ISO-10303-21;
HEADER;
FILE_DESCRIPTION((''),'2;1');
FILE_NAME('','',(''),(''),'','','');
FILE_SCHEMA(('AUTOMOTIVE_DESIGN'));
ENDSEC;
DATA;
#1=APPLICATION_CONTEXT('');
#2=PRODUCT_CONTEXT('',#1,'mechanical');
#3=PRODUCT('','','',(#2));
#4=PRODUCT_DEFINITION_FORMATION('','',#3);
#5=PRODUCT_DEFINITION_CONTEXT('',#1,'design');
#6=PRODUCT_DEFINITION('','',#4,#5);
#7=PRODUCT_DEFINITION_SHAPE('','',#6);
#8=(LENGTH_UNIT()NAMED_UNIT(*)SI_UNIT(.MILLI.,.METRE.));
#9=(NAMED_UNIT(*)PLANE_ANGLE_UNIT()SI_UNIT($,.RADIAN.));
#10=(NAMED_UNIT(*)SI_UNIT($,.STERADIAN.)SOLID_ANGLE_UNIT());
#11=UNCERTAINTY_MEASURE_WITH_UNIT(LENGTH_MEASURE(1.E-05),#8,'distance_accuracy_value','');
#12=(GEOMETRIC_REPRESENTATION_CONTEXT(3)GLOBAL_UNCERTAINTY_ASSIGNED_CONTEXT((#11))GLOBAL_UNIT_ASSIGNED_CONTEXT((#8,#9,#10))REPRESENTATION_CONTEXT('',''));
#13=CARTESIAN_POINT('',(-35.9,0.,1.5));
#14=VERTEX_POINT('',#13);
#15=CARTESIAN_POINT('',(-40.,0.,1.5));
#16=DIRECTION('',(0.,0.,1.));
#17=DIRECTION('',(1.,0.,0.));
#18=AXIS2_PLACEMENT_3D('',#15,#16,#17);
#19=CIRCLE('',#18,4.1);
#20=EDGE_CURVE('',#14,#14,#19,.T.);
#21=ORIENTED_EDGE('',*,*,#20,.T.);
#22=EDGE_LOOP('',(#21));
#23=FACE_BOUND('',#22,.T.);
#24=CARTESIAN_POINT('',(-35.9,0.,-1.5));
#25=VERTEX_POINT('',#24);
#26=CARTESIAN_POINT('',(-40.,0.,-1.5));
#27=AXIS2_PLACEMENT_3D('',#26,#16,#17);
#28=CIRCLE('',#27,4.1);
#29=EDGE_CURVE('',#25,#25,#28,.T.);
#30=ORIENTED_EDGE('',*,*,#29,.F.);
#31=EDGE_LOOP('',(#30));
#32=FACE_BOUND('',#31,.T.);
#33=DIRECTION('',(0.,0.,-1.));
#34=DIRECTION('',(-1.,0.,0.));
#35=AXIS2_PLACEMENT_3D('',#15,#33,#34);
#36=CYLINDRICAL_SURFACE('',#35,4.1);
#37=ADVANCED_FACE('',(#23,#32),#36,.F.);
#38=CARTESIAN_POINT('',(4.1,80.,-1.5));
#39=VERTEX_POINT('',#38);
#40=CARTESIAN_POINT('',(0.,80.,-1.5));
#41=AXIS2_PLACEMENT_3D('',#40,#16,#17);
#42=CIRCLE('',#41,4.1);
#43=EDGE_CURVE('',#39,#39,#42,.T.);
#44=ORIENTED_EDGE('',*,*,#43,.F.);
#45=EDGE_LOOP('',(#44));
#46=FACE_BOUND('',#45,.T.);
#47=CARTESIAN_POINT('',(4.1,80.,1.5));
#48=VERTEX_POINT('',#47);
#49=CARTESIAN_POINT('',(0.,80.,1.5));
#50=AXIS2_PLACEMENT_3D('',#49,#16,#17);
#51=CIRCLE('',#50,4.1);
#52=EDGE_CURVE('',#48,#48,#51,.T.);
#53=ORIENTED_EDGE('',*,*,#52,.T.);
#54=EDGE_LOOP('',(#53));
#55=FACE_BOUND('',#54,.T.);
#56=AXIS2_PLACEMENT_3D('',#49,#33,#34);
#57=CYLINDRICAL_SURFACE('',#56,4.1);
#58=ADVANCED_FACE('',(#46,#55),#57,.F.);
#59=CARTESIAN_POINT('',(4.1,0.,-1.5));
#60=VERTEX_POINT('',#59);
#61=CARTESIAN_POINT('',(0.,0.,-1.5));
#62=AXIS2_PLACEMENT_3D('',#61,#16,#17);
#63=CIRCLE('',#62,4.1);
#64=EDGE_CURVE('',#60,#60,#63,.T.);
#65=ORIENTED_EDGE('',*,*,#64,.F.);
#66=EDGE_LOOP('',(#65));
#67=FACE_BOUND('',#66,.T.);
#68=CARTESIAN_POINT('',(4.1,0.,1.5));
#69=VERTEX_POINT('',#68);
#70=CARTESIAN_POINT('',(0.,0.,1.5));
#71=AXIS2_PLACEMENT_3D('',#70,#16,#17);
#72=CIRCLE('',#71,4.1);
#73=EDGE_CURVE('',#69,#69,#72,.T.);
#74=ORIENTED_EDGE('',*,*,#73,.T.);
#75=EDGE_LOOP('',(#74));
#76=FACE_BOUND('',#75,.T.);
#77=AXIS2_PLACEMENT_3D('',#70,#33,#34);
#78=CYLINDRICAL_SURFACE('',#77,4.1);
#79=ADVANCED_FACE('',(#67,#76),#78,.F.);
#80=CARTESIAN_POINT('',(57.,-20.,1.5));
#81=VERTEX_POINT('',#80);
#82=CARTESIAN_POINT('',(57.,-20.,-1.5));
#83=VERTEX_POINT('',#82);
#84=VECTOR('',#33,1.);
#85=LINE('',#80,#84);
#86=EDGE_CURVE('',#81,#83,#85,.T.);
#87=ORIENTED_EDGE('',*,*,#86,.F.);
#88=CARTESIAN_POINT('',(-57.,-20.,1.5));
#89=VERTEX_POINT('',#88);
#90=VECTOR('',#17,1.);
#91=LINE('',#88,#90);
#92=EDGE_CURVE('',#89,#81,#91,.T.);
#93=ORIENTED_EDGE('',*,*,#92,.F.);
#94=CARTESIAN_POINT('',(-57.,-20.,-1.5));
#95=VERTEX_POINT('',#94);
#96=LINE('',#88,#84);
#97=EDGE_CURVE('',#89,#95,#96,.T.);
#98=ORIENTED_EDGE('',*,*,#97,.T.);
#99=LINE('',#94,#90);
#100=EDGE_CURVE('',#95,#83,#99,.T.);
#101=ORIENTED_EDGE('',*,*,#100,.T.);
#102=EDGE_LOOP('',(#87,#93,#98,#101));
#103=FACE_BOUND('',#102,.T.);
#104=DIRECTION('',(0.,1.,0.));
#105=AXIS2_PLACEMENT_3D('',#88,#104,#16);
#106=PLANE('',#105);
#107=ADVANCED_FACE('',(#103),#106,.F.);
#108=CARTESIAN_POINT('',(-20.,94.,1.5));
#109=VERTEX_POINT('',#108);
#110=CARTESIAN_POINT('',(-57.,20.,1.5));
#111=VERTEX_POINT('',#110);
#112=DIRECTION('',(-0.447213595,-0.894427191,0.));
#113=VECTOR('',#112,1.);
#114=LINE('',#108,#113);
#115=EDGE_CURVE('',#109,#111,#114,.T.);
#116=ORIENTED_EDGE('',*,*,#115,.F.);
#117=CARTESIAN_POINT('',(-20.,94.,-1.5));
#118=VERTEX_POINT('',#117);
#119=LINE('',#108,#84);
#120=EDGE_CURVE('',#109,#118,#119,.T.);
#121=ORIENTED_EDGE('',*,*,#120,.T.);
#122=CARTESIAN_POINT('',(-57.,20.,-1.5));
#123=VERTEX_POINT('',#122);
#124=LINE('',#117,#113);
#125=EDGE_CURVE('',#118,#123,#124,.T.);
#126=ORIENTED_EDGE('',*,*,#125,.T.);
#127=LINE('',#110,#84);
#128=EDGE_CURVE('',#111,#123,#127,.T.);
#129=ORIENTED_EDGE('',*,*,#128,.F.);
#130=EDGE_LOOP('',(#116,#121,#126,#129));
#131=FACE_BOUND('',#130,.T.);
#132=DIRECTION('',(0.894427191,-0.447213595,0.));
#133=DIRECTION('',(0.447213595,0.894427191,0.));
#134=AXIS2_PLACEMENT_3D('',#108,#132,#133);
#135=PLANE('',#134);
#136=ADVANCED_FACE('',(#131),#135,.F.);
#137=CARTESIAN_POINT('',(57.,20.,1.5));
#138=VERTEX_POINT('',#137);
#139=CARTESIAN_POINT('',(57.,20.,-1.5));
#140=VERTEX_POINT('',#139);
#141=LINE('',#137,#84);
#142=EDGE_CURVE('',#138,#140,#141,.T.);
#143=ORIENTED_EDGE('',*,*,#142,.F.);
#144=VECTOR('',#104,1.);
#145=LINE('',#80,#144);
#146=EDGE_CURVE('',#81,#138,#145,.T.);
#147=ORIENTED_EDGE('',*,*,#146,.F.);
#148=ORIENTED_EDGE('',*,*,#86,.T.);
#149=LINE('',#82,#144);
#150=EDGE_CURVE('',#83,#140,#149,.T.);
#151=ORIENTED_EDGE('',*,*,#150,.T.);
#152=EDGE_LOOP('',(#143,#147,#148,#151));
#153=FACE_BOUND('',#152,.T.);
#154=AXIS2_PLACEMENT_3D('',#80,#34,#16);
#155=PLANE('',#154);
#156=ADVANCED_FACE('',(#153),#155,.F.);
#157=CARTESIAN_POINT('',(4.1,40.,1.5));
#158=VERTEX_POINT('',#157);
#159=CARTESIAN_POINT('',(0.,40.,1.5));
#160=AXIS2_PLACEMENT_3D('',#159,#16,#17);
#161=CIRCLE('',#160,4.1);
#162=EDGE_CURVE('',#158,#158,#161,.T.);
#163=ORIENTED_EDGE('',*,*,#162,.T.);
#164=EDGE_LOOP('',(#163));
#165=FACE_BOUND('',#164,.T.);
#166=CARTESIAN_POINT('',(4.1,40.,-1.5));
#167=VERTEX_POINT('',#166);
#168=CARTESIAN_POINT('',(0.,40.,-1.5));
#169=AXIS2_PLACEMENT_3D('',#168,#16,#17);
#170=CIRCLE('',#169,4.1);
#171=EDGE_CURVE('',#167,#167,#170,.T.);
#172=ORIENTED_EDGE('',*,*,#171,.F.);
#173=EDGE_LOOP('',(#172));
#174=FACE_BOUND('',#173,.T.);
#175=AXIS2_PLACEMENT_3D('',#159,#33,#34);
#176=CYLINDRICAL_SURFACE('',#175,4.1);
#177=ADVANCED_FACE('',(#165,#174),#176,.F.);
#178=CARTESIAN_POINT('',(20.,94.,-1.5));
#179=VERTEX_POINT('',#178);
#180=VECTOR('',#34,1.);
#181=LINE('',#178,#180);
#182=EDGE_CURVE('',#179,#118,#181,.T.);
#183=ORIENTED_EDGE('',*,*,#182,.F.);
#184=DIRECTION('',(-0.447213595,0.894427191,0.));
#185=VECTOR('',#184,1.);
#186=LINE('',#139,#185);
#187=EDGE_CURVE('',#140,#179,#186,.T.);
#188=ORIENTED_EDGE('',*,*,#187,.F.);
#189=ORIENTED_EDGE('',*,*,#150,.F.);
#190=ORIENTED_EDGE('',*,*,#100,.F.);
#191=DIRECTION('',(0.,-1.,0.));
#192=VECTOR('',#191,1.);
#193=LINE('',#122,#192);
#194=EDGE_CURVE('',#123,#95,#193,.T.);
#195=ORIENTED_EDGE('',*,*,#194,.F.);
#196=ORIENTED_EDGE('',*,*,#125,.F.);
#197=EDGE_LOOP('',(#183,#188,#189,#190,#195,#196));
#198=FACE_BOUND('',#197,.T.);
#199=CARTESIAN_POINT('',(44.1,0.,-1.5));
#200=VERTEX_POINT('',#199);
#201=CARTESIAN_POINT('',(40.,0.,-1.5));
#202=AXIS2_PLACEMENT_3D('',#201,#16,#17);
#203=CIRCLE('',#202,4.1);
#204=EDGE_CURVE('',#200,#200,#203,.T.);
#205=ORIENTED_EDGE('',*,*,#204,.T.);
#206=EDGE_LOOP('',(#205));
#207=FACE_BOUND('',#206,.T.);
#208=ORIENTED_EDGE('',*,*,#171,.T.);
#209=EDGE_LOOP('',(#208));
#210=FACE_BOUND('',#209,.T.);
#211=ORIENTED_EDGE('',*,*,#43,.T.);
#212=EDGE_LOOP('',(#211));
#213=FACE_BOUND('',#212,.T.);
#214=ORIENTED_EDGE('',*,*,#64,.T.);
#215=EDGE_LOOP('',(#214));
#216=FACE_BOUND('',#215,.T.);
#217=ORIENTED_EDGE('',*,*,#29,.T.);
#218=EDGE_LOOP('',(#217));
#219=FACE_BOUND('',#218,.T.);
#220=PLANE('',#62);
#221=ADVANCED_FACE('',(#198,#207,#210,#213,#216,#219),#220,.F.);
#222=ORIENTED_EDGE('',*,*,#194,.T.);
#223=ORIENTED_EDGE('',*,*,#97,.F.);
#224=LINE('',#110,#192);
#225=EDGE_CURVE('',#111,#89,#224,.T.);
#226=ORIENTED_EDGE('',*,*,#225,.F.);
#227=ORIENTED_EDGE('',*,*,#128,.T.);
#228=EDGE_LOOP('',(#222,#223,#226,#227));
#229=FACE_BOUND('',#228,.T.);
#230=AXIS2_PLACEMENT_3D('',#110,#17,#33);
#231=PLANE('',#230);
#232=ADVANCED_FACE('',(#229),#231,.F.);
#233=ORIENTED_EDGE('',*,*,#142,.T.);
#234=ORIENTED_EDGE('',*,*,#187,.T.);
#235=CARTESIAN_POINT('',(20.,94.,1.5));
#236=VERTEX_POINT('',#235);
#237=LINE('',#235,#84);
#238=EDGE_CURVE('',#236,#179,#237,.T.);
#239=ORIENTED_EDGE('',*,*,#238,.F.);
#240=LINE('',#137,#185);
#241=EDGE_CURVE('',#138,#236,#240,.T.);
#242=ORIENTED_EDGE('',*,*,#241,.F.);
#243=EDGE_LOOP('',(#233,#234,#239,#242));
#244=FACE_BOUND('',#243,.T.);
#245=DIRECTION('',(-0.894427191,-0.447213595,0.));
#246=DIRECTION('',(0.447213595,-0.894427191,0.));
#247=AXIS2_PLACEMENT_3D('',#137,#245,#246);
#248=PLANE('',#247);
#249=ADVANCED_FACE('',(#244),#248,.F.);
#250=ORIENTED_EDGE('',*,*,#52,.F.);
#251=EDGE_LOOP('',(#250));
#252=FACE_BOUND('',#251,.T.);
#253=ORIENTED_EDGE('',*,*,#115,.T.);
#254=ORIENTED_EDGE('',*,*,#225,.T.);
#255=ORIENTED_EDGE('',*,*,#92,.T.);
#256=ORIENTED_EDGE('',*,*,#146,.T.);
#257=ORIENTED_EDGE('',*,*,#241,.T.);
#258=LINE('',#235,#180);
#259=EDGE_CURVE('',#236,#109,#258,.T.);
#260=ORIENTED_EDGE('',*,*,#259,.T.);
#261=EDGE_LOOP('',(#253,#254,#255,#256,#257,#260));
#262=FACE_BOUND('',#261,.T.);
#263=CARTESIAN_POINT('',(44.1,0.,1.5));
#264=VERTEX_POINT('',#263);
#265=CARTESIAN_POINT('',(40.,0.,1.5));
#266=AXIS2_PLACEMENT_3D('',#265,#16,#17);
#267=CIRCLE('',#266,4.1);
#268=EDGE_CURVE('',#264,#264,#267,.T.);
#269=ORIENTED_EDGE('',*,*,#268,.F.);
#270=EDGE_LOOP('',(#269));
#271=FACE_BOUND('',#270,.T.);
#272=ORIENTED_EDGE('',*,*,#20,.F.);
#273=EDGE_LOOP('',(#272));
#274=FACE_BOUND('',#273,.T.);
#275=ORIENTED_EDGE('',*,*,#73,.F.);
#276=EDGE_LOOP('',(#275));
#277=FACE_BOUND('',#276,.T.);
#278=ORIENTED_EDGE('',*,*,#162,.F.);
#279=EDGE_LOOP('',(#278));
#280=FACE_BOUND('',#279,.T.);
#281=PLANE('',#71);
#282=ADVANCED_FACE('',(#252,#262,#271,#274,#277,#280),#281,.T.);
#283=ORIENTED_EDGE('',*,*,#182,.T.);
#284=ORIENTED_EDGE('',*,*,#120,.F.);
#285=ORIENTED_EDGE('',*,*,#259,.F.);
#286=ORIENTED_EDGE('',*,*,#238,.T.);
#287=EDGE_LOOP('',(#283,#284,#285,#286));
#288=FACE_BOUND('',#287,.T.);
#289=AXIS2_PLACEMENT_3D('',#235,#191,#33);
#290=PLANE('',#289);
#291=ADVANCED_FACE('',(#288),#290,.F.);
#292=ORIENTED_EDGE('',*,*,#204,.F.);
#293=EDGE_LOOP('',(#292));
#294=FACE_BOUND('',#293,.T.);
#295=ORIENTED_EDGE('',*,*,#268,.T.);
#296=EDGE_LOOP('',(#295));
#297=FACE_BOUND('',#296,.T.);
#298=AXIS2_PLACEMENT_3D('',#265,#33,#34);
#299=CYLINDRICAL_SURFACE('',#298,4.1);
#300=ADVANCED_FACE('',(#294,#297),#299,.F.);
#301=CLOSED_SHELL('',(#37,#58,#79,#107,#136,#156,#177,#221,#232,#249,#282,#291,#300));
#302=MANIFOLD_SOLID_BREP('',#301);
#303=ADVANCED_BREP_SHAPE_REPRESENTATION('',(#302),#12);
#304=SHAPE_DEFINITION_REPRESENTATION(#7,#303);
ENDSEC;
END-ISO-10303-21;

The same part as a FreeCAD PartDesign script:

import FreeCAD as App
import Part
import Sketcher
from FreeCAD import Vector
Q = App.Units.Quantity


def add_polygon(sketch, points):
    """Adds a closed chain of lines whose ends are joined by coincident constraints."""
    first, n = sketch.GeometryCount, len(points)
    for a, b in zip(points, points[1:] + points[:1]):
        sketch.addGeometry(Part.LineSegment(App.Vector(*a, 0), App.Vector(*b, 0)), False)
    for i in range(n):
        sketch.addConstraint(Sketcher.Constraint("Coincident", first + i, 2, first + (i + 1) % n, 1))

doc = App.newDocument("Part")
body = doc.addObject("PartDesign::Body", "Body")

# Sketch on XY plane
sketch1 = body.newObject("Sketcher::SketchObject", "Sketch")
sketch1.AttachmentSupport = (doc.getObject("XY_Plane"), [""])
sketch1.MapMode = "FlatFace"
add_polygon(sketch1, [(-57, -20), (57, -20), (57, 20), (20, 94), (-20, 94), (-57, 20)])  # lines 0-5
sketch1.addGeometry(Part.Circle(Vector(-40, 0, 0), Vector(0, 0, 1), 4.1), False)  # 6
sketch1.addGeometry(Part.Circle(Vector(0, 0, 0), Vector(0, 0, 1), 4.1), False)  # 7
sketch1.addGeometry(Part.Circle(Vector(40, 0, 0), Vector(0, 0, 1), 4.1), False)  # 8
sketch1.addGeometry(Part.Circle(Vector(0, 40, 0), Vector(0, 0, 1), 4.1), False)  # 9
sketch1.addGeometry(Part.Circle(Vector(0, 80, 0), Vector(0, 0, 1), 4.1), False)  # 10
sketch1.addConstraint(Sketcher.Constraint("Horizontal", 0))
sketch1.addConstraint(Sketcher.Constraint("Vertical", 1))
sketch1.addConstraint(Sketcher.Constraint("Horizontal", 3))
sketch1.addConstraint(Sketcher.Constraint("Vertical", 5))
sketch1.addConstraint(Sketcher.Constraint("Coincident", 7, 3, -1, 1))
sketch1.addConstraint(Sketcher.Constraint("Equal", 6, 7))
sketch1.addConstraint(Sketcher.Constraint("Equal", 7, 8))
sketch1.addConstraint(Sketcher.Constraint("Equal", 8, 9))
sketch1.addConstraint(Sketcher.Constraint("Equal", 9, 10))
sketch1.addConstraint(Sketcher.Constraint("Symmetric", 6, 3, 8, 3, -1, 1))
sketch1.addConstraint(Sketcher.Constraint("Symmetric", 0, 2, 4, 2, -1, 1))
sketch1.addConstraint(Sketcher.Constraint("PointOnObject", 6, 3, -1))
sketch1.addConstraint(Sketcher.Constraint("PointOnObject", 9, 3, -2))
sketch1.addConstraint(Sketcher.Constraint("PointOnObject", 10, 3, -2))
sketch1.addConstraint(Sketcher.Constraint("Horizontal", 1, 2, 4, 2))
sketch1.addConstraint(Sketcher.Constraint("Equal", 3, 1))
sketch1.addConstraint(Sketcher.Constraint("Equal", 2, 4))
sketch1.addConstraint(Sketcher.Constraint("Diameter", 6, Q("8.2 mm")))
sketch1.addConstraint(Sketcher.Constraint("DistanceX", 0, 1, 0, 2, Q("114 mm")))
sketch1.addConstraint(Sketcher.Constraint("DistanceX", 3, 2, 3, 1, Q("40 mm")))
sketch1.addConstraint(Sketcher.Constraint("DistanceX", 6, 3, -1, 1, Q("40 mm")))
sketch1.addConstraint(Sketcher.Constraint("DistanceY", -1, 1, 9, 3, Q("40 mm")))
sketch1.addConstraint(Sketcher.Constraint("DistanceY", -1, 1, 10, 3, Q("80 mm")))
sketch1.addConstraint(Sketcher.Constraint("DistanceY", -1, 1, 2, 2, Q("94 mm")))
pad1 = body.newObject("PartDesign::Pad", "Pad")
pad1.Profile = sketch1
pad1.Length = 3
pad1.Midplane = True

doc.recompute()
